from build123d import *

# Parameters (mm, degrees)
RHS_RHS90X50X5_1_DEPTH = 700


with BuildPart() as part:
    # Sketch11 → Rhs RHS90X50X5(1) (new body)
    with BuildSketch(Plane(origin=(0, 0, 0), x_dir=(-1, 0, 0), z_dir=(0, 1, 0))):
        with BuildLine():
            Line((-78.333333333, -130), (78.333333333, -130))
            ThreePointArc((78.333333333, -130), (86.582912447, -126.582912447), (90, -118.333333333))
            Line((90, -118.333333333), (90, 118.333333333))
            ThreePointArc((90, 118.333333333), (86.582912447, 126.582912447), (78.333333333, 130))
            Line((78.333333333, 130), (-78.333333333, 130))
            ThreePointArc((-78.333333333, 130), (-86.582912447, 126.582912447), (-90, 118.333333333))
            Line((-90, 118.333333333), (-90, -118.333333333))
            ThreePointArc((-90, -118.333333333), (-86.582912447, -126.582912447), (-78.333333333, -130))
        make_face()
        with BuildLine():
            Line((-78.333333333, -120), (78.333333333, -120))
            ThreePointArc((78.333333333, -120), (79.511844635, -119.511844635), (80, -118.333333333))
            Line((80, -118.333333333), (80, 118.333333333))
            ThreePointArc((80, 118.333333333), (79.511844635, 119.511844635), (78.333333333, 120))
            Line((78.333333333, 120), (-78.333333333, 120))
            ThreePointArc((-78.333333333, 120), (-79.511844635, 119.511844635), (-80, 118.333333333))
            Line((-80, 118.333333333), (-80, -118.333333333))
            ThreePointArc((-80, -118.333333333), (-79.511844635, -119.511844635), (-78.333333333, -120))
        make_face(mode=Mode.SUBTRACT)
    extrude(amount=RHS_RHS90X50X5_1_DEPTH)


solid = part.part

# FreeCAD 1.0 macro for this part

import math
import FreeCAD as App
import Part
import Sketcher
from FreeCAD import Vector
Q = App.Units.Quantity

doc = App.newDocument("Part")
body = doc.addObject("PartDesign::Body", "Body")

# Sketch on XZ plane
sketch1 = body.newObject("Sketcher::SketchObject", "Sketch")
sketch1.AttachmentSupport = (doc.getObject("XZ_Plane"), [""])
sketch1.MapMode = "FlatFace"
sketch1.addGeometry([
    Part.LineSegment(Vector(78.3, -130, 0), Vector(-78.3, -130, 0)),  # 0
    Part.ArcOfCircle(Part.Circle(Vector(-78.3, -118.3, 0), Vector(0, 0, 1), 11.7), math.radians(180), math.radians(270)),  # 1
    Part.LineSegment(Vector(-90, -118.3, 0), Vector(-90, 118.3, 0)),  # 2
    Part.ArcOfCircle(Part.Circle(Vector(-78.3, 118.3, 0), Vector(0, 0, 1), 11.7), math.radians(90), math.radians(180)),  # 3
    Part.LineSegment(Vector(-78.3, 130, 0), Vector(78.3, 130, 0)),  # 4
    Part.ArcOfCircle(Part.Circle(Vector(78.3, 118.3, 0), Vector(0, 0, 1), 11.7), math.radians(0), math.radians(90)),  # 5
    Part.LineSegment(Vector(90, 118.3, 0), Vector(90, -118.3, 0)),  # 6
    Part.ArcOfCircle(Part.Circle(Vector(78.3, -118.3, 0), Vector(0, 0, 1), 11.7), math.radians(-90), math.radians(0)),  # 7
    Part.LineSegment(Vector(-78.3, -120, 0), Vector(78.3, -120, 0)),  # 8
    Part.ArcOfCircle(Part.Circle(Vector(78.3, -118.3, 0), Vector(0, 0, 1), 1.7), math.radians(-90), math.radians(0)),  # 9
    Part.LineSegment(Vector(80, -118.3, 0), Vector(80, 118.3, 0)),  # 10
    Part.ArcOfCircle(Part.Circle(Vector(78.3, 118.3, 0), Vector(0, 0, 1), 1.7), math.radians(0), math.radians(90)),  # 11
    Part.LineSegment(Vector(78.3, 120, 0), Vector(-78.3, 120, 0)),  # 12
    Part.ArcOfCircle(Part.Circle(Vector(-78.3, 118.3, 0), Vector(0, 0, 1), 1.7), math.radians(90), math.radians(180)),  # 13
    Part.LineSegment(Vector(-80, 118.3, 0), Vector(-80, -118.3, 0)),  # 14
    Part.ArcOfCircle(Part.Circle(Vector(-78.3, -118.3, 0), Vector(0, 0, 1), 1.7), math.radians(-180), math.radians(-90)),  # 15
], False)
sketch1.addConstraint([
    Sketcher.Constraint("Tangent", 0, 2, 1, 2),
    Sketcher.Constraint("Tangent", 1, 1, 2, 1),
    Sketcher.Constraint("Tangent", 2, 2, 3, 2),
    Sketcher.Constraint("Tangent", 3, 1, 4, 1),
    Sketcher.Constraint("Tangent", 4, 2, 5, 2),
    Sketcher.Constraint("Tangent", 5, 1, 6, 1),
    Sketcher.Constraint("Tangent", 6, 2, 7, 2),
    Sketcher.Constraint("Tangent", 7, 1, 0, 1),
    Sketcher.Constraint("Tangent", 8, 2, 9, 1),
    Sketcher.Constraint("Tangent", 9, 2, 10, 1),
    Sketcher.Constraint("Tangent", 10, 2, 11, 1),
    Sketcher.Constraint("Tangent", 11, 2, 12, 1),
    Sketcher.Constraint("Tangent", 12, 2, 13, 1),
    Sketcher.Constraint("Tangent", 13, 2, 14, 1),
    Sketcher.Constraint("Tangent", 14, 2, 15, 1),
    Sketcher.Constraint("Tangent", 15, 2, 8, 1),
    Sketcher.Constraint("Horizontal", 0),
    Sketcher.Constraint("Vertical", 2),
    Sketcher.Constraint("Horizontal", 4),
    Sketcher.Constraint("Vertical", 6),
    Sketcher.Constraint("Horizontal", 8),
    Sketcher.Constraint("Vertical", 10),
    Sketcher.Constraint("Horizontal", 12),
    Sketcher.Constraint("Vertical", 14),
    Sketcher.Constraint("Coincident", 9, 3, 7, 3),
    Sketcher.Constraint("Coincident", 11, 3, 5, 3),
    Sketcher.Constraint("Coincident", 13, 3, 3, 3),
    Sketcher.Constraint("Equal", 1, 3),
    Sketcher.Constraint("Equal", 3, 5),
    Sketcher.Constraint("Equal", 5, 7),
    Sketcher.Constraint("Equal", 13, 15),
    Sketcher.Constraint("Symmetric", 1, 3, 5, 3, -1, 1),
    Sketcher.Constraint("DistanceY", 0, 2, -1, 1, Q("130 mm")),
    Sketcher.Constraint("DistanceX", 1, 1, -1, 1, Q("90 mm")),
    Sketcher.Constraint("DistanceY", 8, 2, -1, 1, Q("120 mm")),
    Sketcher.Constraint("Radius", 1, Q("11.666667 mm")),
])
pad1 = body.newObject("PartDesign::Pad", "Pad")
pad1.Profile = sketch1
pad1.Length = 700
pad1.Reversed = True

doc.recompute()
